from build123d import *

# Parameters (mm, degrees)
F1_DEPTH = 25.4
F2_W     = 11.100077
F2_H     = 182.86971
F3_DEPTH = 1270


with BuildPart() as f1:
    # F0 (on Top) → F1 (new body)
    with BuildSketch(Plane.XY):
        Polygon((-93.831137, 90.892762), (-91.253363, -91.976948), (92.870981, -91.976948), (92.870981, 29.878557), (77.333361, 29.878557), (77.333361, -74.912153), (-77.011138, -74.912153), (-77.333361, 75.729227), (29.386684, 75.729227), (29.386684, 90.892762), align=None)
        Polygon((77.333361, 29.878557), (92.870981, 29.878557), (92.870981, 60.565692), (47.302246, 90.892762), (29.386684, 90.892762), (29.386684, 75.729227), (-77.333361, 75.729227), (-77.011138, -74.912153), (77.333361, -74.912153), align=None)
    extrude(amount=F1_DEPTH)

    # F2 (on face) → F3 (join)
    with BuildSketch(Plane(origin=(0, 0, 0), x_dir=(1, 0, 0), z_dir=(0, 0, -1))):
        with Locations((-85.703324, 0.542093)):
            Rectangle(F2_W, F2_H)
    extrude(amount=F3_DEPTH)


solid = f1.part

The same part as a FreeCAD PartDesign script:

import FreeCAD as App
import Part
import Sketcher
Q = App.Units.Quantity


def add_polygon(sketch, points):
    """Adds a closed chain of lines whose ends are joined by coincident constraints."""
    first, n = sketch.GeometryCount, len(points)
    for a, b in zip(points, points[1:] + points[:1]):
        sketch.addGeometry(Part.LineSegment(App.Vector(*a, 0), App.Vector(*b, 0)), False)
    for i in range(n):
        sketch.addConstraint(Sketcher.Constraint("Coincident", first + i, 2, first + (i + 1) % n, 1))

doc = App.newDocument("Part")
body = doc.addObject("PartDesign::Body", "Body")

# Sketch on XY plane
sketch1 = body.newObject("Sketcher::SketchObject", "Sketch")
sketch1.AttachmentSupport = (doc.getObject("XY_Plane"), [""])
sketch1.MapMode = "FlatFace"
add_polygon(sketch1, [(-94, 91), (-91, -92), (93, -92), (93, 61), (47, 91)])  # lines 0-4
sketch1.addConstraint([
    Sketcher.Constraint("Horizontal", 1),
    Sketcher.Constraint("Vertical", 2),
    Sketcher.Constraint("Horizontal", 4),
    Sketcher.Constraint("DistanceY", 2, 1, 2, 2, Q("152.54264 mm")),
    Sketcher.Constraint("Distance", 3, Q("54.737928 mm")),
    Sketcher.Constraint("DistanceX", 1, 1, 1, 2, Q("184.124344 mm")),
    Sketcher.Constraint("DistanceX", 4, 2, 4, 1, Q("141.133383 mm")),
    Sketcher.Constraint("DistanceX", -1, 1, 1, 2, Q("92.870981 mm")),
    Sketcher.Constraint("DistanceY", 2, 2, 3, 2, Q("30.32707 mm")),
    Sketcher.Constraint("DistanceY", 0, 2, -1, 1, Q("91.976948 mm")),
])
pad1 = body.newObject("PartDesign::Pad", "Pad")
pad1.Profile = sketch1
pad1.Length = Q("1 in")

# Sketch on XY plane
sketch2 = body.newObject("Sketcher::SketchObject", "Sketch001")
sketch2.AttachmentSupport = (doc.getObject("XY_Plane"), [""])
sketch2.MapMode = "FlatFace"
add_polygon(sketch2, [(-91, -92), (-91, 91), (-80, 91), (-80, -92)])  # lines 0-3
sketch2.addConstraint([
    Sketcher.Constraint("Vertical", 0),
    Sketcher.Constraint("Horizontal", 1),
    Sketcher.Constraint("Vertical", 2),
    Sketcher.Constraint("Horizontal", 3),
    Sketcher.Constraint("DistanceY", 0, 1, 0, 2, Q("182.86971 mm")),
    Sketcher.Constraint("DistanceX", 1, 1, 1, 2, Q("11.100077 mm")),
    Sketcher.Constraint("DistanceX", 0, 2, -1, 1, Q("91.253362 mm")),
    Sketcher.Constraint("DistanceY", -1, 1, 0, 2, Q("90.892762 mm")),
])
pad2 = body.newObject("PartDesign::Pad", "Pad001")
pad2.Profile = sketch2
pad2.Length = Q("50 in")
pad2.Reversed = True

doc.recompute()
